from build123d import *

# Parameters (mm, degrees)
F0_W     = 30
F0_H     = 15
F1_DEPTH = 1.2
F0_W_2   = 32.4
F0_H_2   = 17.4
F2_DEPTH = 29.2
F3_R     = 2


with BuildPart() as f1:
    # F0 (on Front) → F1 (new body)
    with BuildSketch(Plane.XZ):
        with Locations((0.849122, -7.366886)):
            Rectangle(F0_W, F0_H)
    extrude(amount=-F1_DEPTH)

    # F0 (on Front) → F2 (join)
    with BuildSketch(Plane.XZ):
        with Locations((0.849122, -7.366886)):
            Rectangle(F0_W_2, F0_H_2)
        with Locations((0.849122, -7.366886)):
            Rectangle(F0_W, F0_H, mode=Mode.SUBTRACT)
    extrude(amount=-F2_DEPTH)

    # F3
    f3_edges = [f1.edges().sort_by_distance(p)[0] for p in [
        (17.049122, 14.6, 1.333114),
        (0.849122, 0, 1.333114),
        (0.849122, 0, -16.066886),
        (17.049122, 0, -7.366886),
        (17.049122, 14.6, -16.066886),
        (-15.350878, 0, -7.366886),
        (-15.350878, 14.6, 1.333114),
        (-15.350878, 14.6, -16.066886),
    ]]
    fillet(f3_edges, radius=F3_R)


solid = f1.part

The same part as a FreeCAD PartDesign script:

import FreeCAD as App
import Part
import Sketcher
Q = App.Units.Quantity


def edges_at(feature, points):
    """Names of the edges that pass closest to the given points."""
    edges = feature.Shape.Edges
    near = lambda p: min(range(len(edges)), key=lambda i: edges[i].distToShape(Part.Vertex(*p))[0])
    return sorted({f"Edge{near(p) + 1}" for p in points})

doc = App.newDocument("Part")
body = doc.addObject("PartDesign::Body", "Body")

# Sketch on XZ plane
sketch1 = doc.addObject("Sketcher::SketchObject", "Sketch")
body.addObject(sketch1)
sketch1.AttachmentSupport = (doc.XZ_Plane, [""])
sketch1.MapMode = "FlatFace"
sketch1.addGeometry([
    Part.LineSegment(App.Vector(-14.150878, 0.133114, 0), App.Vector(-14.150878, -14.866886, 0)),
    Part.LineSegment(App.Vector(-14.150878, -14.866886, 0), App.Vector(15.849122, -14.866886, 0)),
    Part.LineSegment(App.Vector(15.849122, -14.866886, 0), App.Vector(15.849122, 0.133114, 0)),
    Part.LineSegment(App.Vector(15.849122, 0.133114, 0), App.Vector(-14.150878, 0.133114, 0)),
], False)
sketch1.addConstraint([
    Sketcher.Constraint("Coincident", 0, 2, 1, 1),
    Sketcher.Constraint("Coincident", 1, 2, 2, 1),
    Sketcher.Constraint("Coincident", 2, 2, 3, 1),
    Sketcher.Constraint("Coincident", 3, 2, 0, 1),
    Sketcher.Constraint("Vertical", 0),
    Sketcher.Constraint("Horizontal", 1),
    Sketcher.Constraint("Vertical", 2),
    Sketcher.Constraint("Horizontal", 3),
    Sketcher.Constraint("DistanceX", 1, 1, 1, 2, Q("30 mm")),
    Sketcher.Constraint("DistanceY", 0, 2, 0, 1, Q("15 mm")),
    Sketcher.Constraint("DistanceX", 0, 2, -1, 1, Q("14.150878 mm")),
    Sketcher.Constraint("DistanceY", 0, 2, -1, 1, Q("14.866886 mm")),
])
pad1 = doc.addObject("PartDesign::Pad", "Pad")
body.addObject(pad1)
pad1.Profile = sketch1
pad1.Length = 1.2
pad1.Reversed = True

# Sketch on XZ plane
sketch2 = doc.addObject("Sketcher::SketchObject", "Sketch001")
body.addObject(sketch2)
sketch2.AttachmentSupport = (doc.XZ_Plane, [""])
sketch2.MapMode = "FlatFace"
sketch2.addGeometry([
    Part.LineSegment(App.Vector(-15.350878, 1.333114, 0), App.Vector(-15.350878, -16.066886, 0)),  # 0
    Part.LineSegment(App.Vector(-15.350878, -16.066886, 0), App.Vector(17.049122, -16.066886, 0)),  # 1
    Part.LineSegment(App.Vector(17.049122, -16.066886, 0), App.Vector(17.049122, 1.333114, 0)),  # 2
    Part.LineSegment(App.Vector(17.049122, 1.333114, 0), App.Vector(-15.350878, 1.333114, 0)),  # 3
    Part.LineSegment(App.Vector(15.849122, -14.866886, 0), App.Vector(-14.150878, -14.866886, 0)),  # 4
    Part.LineSegment(App.Vector(-14.150878, -14.866886, 0), App.Vector(-14.150878, 0.133114, 0)),  # 5
    Part.LineSegment(App.Vector(-14.150878, 0.133114, 0), App.Vector(15.849122, 0.133114, 0)),  # 6
    Part.LineSegment(App.Vector(15.849122, 0.133114, 0), App.Vector(15.849122, -14.866886, 0)),  # 7
], False)
sketch2.addConstraint([
    Sketcher.Constraint("Coincident", 0, 2, 1, 1),
    Sketcher.Constraint("Coincident", 1, 2, 2, 1),
    Sketcher.Constraint("Coincident", 2, 2, 3, 1),
    Sketcher.Constraint("Coincident", 3, 2, 0, 1),
    Sketcher.Constraint("Coincident", 4, 2, 5, 1),
    Sketcher.Constraint("Coincident", 5, 2, 6, 1),
    Sketcher.Constraint("Coincident", 6, 2, 7, 1),
    Sketcher.Constraint("Coincident", 7, 2, 4, 1),
    Sketcher.Constraint("Vertical", 0),
    Sketcher.Constraint("Horizontal", 1),
    Sketcher.Constraint("Vertical", 2),
    Sketcher.Constraint("Horizontal", 3),
    Sketcher.Constraint("Horizontal", 4),
    Sketcher.Constraint("Vertical", 5),
    Sketcher.Constraint("Horizontal", 6),
    Sketcher.Constraint("Vertical", 7),
    Sketcher.Constraint("DistanceX", 4, 2, 4, 1, Q("30 mm")),
    Sketcher.Constraint("DistanceY", 5, 1, 5, 2, Q("15 mm")),
    Sketcher.Constraint("DistanceX", 1, 1, 1, 2, Q("32.4 mm")),
    Sketcher.Constraint("DistanceY", 0, 2, 0, 1, Q("17.4 mm")),
    Sketcher.Constraint("DistanceX", 0, 2, 4, 2, Q("1.2 mm")),
    Sketcher.Constraint("DistanceY", 0, 2, 4, 2, Q("1.2 mm")),
    Sketcher.Constraint("DistanceX", 0, 2, -1, 1, Q("15.350878 mm")),
    Sketcher.Constraint("DistanceY", 0, 2, -1, 1, Q("16.066886 mm")),
])
pad2 = doc.addObject("PartDesign::Pad", "Pad001")
body.addObject(pad2)
pad2.Profile = sketch2
pad2.Length = 29.2
pad2.Reversed = True
doc.recompute()

fillet = doc.addObject("PartDesign::Fillet", "Fillet")
body.addObject(fillet)
fillet.Base = (pad2, edges_at(pad2, [
    (17.049, 14.6, 1.333),
    (0.849, 0, 1.333),
    (0.849, 0, -16.067),
    (17.049, 0, -7.367),
    (17.049, 14.6, -16.067),
    (-15.351, 0, -7.367),
    (-15.351, 14.6, 1.333),
    (-15.351, 14.6, -16.067),
]))
fillet.Radius = 2

doc.recompute()
